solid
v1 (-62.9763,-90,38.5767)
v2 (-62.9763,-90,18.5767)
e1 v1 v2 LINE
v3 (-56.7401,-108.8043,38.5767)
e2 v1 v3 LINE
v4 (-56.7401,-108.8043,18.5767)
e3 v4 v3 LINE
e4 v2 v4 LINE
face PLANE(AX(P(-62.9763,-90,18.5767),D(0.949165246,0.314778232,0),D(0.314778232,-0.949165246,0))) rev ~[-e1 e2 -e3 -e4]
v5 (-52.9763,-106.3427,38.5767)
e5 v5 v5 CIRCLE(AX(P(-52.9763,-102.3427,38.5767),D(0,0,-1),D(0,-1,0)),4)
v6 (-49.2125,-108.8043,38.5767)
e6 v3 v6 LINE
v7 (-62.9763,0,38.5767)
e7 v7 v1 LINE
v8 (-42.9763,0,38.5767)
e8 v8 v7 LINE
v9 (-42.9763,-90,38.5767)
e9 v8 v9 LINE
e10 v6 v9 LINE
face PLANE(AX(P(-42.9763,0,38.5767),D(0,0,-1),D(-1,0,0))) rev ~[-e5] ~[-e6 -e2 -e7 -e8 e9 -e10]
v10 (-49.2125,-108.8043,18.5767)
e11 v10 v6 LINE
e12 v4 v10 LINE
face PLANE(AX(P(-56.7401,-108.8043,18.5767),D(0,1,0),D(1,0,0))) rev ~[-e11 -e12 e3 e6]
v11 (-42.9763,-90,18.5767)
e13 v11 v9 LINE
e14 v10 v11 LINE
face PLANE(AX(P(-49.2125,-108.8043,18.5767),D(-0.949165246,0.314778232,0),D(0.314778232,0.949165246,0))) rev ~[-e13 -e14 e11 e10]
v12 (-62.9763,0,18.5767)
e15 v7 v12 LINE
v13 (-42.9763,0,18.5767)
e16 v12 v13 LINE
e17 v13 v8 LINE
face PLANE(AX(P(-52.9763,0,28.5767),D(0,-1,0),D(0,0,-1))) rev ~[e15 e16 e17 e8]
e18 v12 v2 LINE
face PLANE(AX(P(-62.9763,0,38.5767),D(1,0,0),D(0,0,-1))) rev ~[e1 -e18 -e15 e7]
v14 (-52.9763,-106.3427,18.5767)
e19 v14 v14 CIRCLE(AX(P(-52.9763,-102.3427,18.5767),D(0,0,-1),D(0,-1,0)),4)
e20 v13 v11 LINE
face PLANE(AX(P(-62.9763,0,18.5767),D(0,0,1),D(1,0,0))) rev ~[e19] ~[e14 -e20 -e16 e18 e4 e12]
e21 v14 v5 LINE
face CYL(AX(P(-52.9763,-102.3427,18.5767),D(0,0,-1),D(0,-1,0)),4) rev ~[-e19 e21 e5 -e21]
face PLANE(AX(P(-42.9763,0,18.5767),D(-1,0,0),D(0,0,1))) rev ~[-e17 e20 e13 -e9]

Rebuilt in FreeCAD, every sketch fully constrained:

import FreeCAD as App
import Part
import Sketcher

V = App.Vector


def add_polygon(sketch, points):
    """Adds a closed chain of lines whose ends are joined by coincident constraints."""
    first, n = sketch.GeometryCount, len(points)
    for a, b in zip(points, points[1:] + points[:1]):
        sketch.addGeometry(Part.LineSegment(App.Vector(*a, 0), App.Vector(*b, 0)), False)
    for i in range(n):
        sketch.addConstraint(Sketcher.Constraint("Coincident", first + i, 2, first + (i + 1) % n, 1))

doc = App.newDocument("Part")
body = doc.addObject("PartDesign::Body", "Body")

# Sketch on XZ plane
sketch1 = body.newObject("Sketcher::SketchObject", "Sketch")
sketch1.AttachmentSupport = (doc.getObject("XZ_Plane"), [""])
sketch1.MapMode = "FlatFace"
add_polygon(sketch1, [(-63, 39), (-63, 19), (-43, 19), (-43, 39)])  # lines 0-3
sketch1.addConstraint(Sketcher.Constraint("Vertical", 0))
sketch1.addConstraint(Sketcher.Constraint("Horizontal", 1))
sketch1.addConstraint(Sketcher.Constraint("Vertical", 2))
sketch1.addConstraint(Sketcher.Constraint("Horizontal", 3))
sketch1.addConstraint(Sketcher.Constraint("Equal", 3, 0))
sketch1.addConstraint(Sketcher.Constraint("DistanceX", 1, 1, 1, 2, 20.0))
sketch1.addConstraint(Sketcher.Constraint("DistanceX", 0, 2, -1, 1, 62.9763))
sketch1.addConstraint(Sketcher.Constraint("DistanceY", -1, 1, 0, 2, 18.5767))
pad1 = body.newObject("PartDesign::Pad", "Pad")
pad1.Profile = sketch1
pad1.Length = 90

# Sketch on XY plane
sketch2 = body.newObject("Sketcher::SketchObject", "Sketch001")
sketch2.AttachmentSupport = (doc.getObject("XY_Plane"), [""])
sketch2.MapMode = "FlatFace"
sketch2.AttachmentOffset = App.Placement(V(0, 0, 18.5767), App.Rotation())
add_polygon(sketch2, [(-56.7, -108.8), (-63, -90), (-43, -90), (-49.2, -108.8)])  # lines 0-3
sketch2.addGeometry(Part.Circle(V(-53, -102.3, 0), V(0, 0, 1), 4), False)  # 4
sketch2.addConstraint(Sketcher.Constraint("Horizontal", 1))
sketch2.addConstraint(Sketcher.Constraint("Horizontal", 3))
sketch2.addConstraint(Sketcher.Constraint("Equal", 0, 2))
sketch2.addConstraint(Sketcher.Constraint("Diameter", 4, 8.0))
sketch2.addConstraint(Sketcher.Constraint("DistanceX", 1, 1, 1, 2, 20.0))
sketch2.addConstraint(Sketcher.Constraint("DistanceY", 0, 2, -1, 1, 90.0))
sketch2.addConstraint(Sketcher.Constraint("DistanceX", 0, 2, 4, 3, 10.0))
sketch2.addConstraint(Sketcher.Constraint("DistanceX", 3, 2, -1, 1, 56.74))
sketch2.addConstraint(Sketcher.Constraint("DistanceX", 3, 2, 3, 1, 7.5276))
sketch2.addConstraint(Sketcher.Constraint("Distance", 0, 19.8114))
sketch2.addConstraint(Sketcher.Constraint("DistanceY", 4, 3, -1, 1, 102.3427))
pad2 = body.newObject("PartDesign::Pad", "Pad001")
pad2.Profile = sketch2
pad2.Length = 20

doc.recompute()
